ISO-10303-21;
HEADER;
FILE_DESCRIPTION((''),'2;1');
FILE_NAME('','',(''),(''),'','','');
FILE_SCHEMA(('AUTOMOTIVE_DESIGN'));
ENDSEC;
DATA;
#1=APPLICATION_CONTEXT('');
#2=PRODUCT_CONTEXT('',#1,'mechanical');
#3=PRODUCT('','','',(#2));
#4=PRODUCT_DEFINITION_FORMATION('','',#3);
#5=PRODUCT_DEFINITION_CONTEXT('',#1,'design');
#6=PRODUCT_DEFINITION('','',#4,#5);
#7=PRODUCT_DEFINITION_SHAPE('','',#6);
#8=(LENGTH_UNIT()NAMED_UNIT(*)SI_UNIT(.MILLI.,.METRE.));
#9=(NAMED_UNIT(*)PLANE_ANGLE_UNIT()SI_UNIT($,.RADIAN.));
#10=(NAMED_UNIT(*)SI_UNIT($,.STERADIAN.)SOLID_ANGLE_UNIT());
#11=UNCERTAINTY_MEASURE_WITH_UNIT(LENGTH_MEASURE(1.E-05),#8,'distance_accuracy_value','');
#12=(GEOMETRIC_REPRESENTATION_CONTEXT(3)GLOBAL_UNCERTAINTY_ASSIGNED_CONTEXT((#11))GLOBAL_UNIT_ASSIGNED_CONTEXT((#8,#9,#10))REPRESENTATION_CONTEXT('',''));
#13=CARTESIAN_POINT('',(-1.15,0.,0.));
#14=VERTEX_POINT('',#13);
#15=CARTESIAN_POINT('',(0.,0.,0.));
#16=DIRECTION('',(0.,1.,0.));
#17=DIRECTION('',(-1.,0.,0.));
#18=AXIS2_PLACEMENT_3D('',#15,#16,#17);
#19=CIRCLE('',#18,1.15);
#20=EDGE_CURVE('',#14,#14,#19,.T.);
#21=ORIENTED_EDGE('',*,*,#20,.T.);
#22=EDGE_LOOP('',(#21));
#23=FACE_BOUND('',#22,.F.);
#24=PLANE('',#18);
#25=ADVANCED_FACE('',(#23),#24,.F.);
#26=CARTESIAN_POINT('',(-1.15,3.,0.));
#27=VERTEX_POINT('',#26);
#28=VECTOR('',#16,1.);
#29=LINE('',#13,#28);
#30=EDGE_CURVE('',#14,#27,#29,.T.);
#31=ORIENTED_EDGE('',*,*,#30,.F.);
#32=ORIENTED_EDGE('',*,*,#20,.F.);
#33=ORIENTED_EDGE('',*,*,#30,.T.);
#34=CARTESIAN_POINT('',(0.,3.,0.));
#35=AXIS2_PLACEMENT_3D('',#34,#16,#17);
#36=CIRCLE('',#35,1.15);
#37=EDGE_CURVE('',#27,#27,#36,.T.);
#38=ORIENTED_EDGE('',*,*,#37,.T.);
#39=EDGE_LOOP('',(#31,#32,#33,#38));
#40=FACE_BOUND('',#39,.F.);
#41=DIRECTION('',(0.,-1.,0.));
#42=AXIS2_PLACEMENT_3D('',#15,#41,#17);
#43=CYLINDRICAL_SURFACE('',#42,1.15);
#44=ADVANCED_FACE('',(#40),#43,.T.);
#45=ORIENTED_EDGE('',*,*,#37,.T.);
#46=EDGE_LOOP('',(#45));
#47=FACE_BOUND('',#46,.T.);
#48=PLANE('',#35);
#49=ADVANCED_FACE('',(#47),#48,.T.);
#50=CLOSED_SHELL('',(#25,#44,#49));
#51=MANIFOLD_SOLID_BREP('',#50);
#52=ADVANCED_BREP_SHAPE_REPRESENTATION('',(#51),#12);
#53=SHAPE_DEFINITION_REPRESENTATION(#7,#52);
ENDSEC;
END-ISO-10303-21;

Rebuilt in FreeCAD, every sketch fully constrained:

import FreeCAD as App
import Part
import Sketcher
Q = App.Units.Quantity

doc = App.newDocument("Part")
body = doc.addObject("PartDesign::Body", "Body")

sketch1 = body.newObject("Sketcher::SketchObject", "Sketch")
sketch1.AttachmentSupport = (doc.getObject("XZ_Plane"), [""])
sketch1.MapMode = "FlatFace"
sketch1.addGeometry(Part.Circle(App.Vector(0, 0, 0), App.Vector(0, 0, 1), 1.1), False)
sketch1.addConstraint([
    Sketcher.Constraint("Coincident", 0, 3, -1, 1),
    Sketcher.Constraint("Diameter", 0, Q("2.3 mm")),
])
pad1 = body.newObject("PartDesign::Pad", "Pad")
pad1.Profile = sketch1
pad1.Length = 3
pad1.Reversed = True

doc.recompute()
